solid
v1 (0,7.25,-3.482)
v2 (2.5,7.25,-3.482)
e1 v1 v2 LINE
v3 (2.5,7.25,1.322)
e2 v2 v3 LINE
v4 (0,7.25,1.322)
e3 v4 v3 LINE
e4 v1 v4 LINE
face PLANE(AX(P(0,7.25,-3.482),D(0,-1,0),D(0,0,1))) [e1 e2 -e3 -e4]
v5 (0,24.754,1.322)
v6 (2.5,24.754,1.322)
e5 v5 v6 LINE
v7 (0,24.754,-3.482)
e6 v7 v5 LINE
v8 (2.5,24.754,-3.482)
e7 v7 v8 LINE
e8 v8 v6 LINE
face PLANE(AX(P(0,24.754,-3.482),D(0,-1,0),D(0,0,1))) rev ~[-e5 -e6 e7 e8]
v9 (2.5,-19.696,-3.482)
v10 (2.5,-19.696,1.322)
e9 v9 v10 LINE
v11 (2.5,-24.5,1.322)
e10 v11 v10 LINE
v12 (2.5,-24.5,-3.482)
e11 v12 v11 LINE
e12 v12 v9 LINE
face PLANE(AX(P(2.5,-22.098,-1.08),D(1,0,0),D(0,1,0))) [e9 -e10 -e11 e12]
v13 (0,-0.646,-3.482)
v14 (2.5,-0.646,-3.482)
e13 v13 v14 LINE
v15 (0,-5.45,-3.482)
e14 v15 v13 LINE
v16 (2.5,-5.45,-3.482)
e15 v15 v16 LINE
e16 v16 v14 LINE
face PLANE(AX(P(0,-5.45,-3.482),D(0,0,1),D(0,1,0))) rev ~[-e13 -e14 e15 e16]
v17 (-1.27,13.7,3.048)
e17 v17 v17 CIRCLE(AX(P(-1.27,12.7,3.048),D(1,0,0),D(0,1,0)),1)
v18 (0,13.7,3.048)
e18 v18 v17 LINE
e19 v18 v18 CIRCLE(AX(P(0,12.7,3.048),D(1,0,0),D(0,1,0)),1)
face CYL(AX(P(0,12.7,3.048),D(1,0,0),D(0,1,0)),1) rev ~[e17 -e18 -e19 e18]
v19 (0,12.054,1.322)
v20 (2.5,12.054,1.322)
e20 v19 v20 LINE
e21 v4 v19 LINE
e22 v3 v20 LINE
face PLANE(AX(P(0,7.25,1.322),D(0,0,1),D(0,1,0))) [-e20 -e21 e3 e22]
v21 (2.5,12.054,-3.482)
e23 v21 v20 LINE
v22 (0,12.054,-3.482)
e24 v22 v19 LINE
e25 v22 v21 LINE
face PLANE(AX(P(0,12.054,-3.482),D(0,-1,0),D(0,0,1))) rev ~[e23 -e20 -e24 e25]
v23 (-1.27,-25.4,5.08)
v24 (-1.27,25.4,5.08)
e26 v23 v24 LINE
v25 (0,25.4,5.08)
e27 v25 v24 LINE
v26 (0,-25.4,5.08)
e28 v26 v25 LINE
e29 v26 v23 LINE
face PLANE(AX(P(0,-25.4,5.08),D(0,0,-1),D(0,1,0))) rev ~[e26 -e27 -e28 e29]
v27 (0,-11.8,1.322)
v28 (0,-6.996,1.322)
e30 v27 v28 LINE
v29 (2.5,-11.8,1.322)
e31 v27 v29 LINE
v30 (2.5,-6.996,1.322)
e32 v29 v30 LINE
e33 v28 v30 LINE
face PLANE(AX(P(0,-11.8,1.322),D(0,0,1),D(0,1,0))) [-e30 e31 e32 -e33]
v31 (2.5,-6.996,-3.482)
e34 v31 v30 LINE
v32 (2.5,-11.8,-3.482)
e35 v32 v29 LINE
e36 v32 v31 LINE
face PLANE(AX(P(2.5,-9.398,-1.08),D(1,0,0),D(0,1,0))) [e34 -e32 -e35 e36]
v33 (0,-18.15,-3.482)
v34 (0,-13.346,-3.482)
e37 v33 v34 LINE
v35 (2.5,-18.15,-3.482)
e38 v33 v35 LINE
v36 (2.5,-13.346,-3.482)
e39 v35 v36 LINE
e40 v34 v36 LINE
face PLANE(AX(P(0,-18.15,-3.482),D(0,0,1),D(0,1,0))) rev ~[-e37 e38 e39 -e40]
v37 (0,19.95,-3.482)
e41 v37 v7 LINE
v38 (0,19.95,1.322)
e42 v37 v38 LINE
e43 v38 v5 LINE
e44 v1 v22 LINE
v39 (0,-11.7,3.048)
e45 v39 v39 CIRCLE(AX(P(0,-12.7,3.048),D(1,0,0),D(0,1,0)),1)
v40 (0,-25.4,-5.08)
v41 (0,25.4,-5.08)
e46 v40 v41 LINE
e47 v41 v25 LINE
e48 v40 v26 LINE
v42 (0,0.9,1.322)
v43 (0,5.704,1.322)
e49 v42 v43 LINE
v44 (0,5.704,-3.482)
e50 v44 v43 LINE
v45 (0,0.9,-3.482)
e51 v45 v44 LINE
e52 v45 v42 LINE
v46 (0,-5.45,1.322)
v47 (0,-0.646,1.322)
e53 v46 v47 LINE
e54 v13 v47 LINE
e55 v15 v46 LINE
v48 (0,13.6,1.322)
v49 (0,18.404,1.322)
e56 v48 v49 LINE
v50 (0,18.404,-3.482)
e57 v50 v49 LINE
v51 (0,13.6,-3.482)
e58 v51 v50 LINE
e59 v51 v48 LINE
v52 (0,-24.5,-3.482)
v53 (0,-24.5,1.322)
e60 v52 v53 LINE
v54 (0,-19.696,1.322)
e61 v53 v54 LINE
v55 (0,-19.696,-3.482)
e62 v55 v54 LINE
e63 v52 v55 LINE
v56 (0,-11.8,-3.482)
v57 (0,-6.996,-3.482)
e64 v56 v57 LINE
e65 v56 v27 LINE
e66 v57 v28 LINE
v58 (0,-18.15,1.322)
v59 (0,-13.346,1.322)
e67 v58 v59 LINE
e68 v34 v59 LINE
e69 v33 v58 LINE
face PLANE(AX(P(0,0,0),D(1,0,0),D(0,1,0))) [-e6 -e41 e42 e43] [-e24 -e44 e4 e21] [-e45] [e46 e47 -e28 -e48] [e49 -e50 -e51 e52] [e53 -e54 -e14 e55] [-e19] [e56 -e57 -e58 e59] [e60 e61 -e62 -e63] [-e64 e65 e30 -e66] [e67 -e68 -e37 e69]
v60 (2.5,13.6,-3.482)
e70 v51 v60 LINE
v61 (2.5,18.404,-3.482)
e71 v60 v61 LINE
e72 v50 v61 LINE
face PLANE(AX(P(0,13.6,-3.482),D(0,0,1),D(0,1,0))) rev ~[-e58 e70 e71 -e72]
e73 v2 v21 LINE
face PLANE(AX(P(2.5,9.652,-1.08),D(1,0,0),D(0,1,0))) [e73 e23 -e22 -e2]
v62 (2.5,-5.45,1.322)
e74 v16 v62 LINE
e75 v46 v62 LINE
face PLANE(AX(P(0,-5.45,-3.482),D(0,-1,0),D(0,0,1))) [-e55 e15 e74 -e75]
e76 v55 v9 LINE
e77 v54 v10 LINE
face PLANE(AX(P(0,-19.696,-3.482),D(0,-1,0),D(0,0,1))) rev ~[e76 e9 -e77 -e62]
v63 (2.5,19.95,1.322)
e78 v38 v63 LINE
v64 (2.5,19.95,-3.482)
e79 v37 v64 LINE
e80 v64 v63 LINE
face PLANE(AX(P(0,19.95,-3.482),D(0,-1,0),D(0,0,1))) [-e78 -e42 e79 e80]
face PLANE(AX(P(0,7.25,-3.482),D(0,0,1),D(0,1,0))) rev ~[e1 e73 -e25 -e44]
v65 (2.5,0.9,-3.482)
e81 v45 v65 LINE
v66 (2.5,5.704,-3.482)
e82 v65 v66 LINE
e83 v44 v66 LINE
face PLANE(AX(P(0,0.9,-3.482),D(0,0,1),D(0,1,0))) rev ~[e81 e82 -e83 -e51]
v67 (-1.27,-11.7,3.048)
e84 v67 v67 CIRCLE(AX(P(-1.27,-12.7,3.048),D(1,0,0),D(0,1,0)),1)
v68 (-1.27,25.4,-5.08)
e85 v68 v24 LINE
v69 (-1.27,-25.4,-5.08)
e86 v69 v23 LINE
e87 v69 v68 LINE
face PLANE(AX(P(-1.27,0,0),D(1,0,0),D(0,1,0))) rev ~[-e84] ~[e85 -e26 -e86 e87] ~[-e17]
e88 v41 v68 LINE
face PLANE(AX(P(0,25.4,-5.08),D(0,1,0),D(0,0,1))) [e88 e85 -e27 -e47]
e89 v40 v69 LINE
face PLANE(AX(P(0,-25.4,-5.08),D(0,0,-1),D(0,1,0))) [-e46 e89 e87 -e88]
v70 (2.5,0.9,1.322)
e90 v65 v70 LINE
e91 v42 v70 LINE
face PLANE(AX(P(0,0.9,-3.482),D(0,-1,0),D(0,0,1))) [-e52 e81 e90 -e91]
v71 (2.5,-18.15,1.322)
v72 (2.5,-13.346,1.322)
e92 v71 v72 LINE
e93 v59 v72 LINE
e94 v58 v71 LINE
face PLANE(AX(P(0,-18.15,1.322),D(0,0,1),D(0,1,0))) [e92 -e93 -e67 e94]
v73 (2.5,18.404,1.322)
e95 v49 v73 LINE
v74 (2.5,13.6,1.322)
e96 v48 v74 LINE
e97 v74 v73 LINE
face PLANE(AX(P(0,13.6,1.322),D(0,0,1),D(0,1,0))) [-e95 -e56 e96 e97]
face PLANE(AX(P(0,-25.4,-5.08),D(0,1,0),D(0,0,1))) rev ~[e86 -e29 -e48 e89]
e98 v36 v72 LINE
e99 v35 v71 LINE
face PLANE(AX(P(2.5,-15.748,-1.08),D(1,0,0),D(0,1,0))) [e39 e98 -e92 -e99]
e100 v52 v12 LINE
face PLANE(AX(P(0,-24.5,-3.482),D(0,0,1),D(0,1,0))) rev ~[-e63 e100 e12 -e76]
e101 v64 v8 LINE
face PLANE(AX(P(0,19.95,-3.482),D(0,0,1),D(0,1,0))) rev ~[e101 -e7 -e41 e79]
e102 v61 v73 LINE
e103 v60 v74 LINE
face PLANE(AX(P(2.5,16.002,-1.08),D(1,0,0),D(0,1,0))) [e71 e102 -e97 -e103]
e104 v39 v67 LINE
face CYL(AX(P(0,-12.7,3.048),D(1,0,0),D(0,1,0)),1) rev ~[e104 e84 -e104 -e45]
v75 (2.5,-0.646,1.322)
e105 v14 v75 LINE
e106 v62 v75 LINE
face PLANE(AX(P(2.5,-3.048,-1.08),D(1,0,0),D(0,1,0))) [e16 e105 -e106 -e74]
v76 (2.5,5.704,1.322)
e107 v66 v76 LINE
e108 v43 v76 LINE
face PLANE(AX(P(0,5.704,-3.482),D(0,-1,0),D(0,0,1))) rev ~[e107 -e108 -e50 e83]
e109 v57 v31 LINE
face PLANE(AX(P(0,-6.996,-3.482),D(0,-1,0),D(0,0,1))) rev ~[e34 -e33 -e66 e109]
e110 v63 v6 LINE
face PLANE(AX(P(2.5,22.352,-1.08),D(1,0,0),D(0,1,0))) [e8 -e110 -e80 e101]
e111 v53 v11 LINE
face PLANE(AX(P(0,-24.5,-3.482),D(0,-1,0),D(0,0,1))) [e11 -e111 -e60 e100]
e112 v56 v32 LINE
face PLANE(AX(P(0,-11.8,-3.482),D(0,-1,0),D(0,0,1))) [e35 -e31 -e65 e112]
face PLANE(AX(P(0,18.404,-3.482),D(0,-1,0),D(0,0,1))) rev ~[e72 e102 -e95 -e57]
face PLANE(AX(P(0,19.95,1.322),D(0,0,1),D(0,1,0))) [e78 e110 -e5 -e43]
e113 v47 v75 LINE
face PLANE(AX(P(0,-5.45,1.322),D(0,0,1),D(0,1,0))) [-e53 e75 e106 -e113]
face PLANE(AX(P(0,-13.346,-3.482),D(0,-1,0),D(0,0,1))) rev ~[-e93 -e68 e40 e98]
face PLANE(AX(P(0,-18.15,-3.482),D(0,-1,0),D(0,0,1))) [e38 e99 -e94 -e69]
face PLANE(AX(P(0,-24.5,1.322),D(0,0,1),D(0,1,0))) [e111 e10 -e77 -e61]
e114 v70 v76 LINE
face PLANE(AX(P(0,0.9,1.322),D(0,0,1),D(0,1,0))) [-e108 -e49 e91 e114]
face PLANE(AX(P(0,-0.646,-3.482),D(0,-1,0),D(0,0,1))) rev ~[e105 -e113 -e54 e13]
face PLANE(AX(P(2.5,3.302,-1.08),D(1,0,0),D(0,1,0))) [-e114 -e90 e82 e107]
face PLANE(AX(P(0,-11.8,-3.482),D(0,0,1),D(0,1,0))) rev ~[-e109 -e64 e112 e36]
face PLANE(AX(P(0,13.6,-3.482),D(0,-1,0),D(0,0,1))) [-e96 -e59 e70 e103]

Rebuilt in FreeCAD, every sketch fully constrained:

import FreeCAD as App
import Part
import Sketcher
Q = App.Units.Quantity

doc = App.newDocument("Part")
params = doc.addObject("Spreadsheet::Sheet", "Params")
for row, (alias, value) in enumerate([
    ("sketch1_width", "2 in"),
    ("sketch1_height", "0.4 in"),
    ("pad1_length", "0.05 in"),
    ("pad2_length", "2.5 mm"),
], start=1):
    params.set(f"A{row}", alias)
    params.set(f"B{row}", "=" + value)
    params.setAlias(f"B{row}", alias)

body = doc.addObject("PartDesign::Body", "Body")

# Sketch on YZ plane
sketch1 = doc.addObject("Sketcher::SketchObject", "Sketch")
body.addObject(sketch1)
sketch1.AttachmentSupport = (doc.YZ_Plane, [""])
sketch1.MapMode = "FlatFace"
sketch1.addGeometry([
    Part.LineSegment(App.Vector(-25.4, 5.1, 0), App.Vector(-25.4, -5.1, 0)),  # 0
    Part.LineSegment(App.Vector(-25.4, -5.1, 0), App.Vector(25.4, -5.1, 0)),  # 1
    Part.LineSegment(App.Vector(25.4, -5.1, 0), App.Vector(25.4, 5.1, 0)),  # 2
    Part.LineSegment(App.Vector(25.4, 5.1, 0), App.Vector(-25.4, 5.1, 0)),  # 3
    Part.Circle(App.Vector(-12.7, 3, 0), App.Vector(0, 0, 1), 1),  # 4
    Part.Circle(App.Vector(12.7, 3, 0), App.Vector(0, 0, 1), 1),  # 5
], False)
sketch1.addConstraint([
    Sketcher.Constraint("Coincident", 0, 2, 1, 1),
    Sketcher.Constraint("Coincident", 1, 2, 2, 1),
    Sketcher.Constraint("Coincident", 2, 2, 3, 1),
    Sketcher.Constraint("Coincident", 3, 2, 0, 1),
    Sketcher.Constraint("Vertical", 0),
    Sketcher.Constraint("Horizontal", 1),
    Sketcher.Constraint("Vertical", 2),
    Sketcher.Constraint("Horizontal", 3),
    Sketcher.Constraint("Equal", 4, 5),
    Sketcher.Constraint("Symmetric", 0, 2, 2, 2, -1, 1),
    Sketcher.Constraint("Symmetric", 4, 3, 5, 3, -2),
    Sketcher.Constraint("DistanceX", 1, 1, 1, 2, Q("2 in")),
    Sketcher.Constraint("DistanceY", 0, 2, 0, 1, Q("0.4 in")),
    Sketcher.Constraint("DistanceX", 4, 3, 5, 3, Q("1 in")),
    Sketcher.Constraint("Diameter", 4, Q("2 mm")),
    Sketcher.Constraint("DistanceY", -1, 1, 4, 3, Q("0.12 in")),
])
sketch1.setExpression("Constraints[11]", "Params.sketch1_width")
sketch1.setExpression("Constraints[12]", "Params.sketch1_height")
pad1 = doc.addObject("PartDesign::Pad", "Pad")
body.addObject(pad1)
pad1.Profile = sketch1
pad1.setExpression("Length", "Params.pad1_length")
pad1.Reversed = True

# Sketch on YZ plane
sketch2 = doc.addObject("Sketcher::SketchObject", "Sketch001")
body.addObject(sketch2)
sketch2.AttachmentSupport = (doc.YZ_Plane, [""])
sketch2.MapMode = "FlatFace"
sketch2.addGeometry([
    Part.LineSegment(App.Vector(-24.5, 1.3, 0), App.Vector(-24.5, -3.5, 0)),  # 0
    Part.LineSegment(App.Vector(-24.5, -3.5, 0), App.Vector(-19.7, -3.5, 0)),  # 1
    Part.LineSegment(App.Vector(-19.7, -3.5, 0), App.Vector(-19.7, 1.3, 0)),  # 2
    Part.LineSegment(App.Vector(-19.7, 1.3, 0), App.Vector(-24.5, 1.3, 0)),  # 3
    Part.LineSegment(App.Vector(-18.1, 1.3, 0), App.Vector(-18.1, -3.5, 0)),  # 4
    Part.LineSegment(App.Vector(-18.1, -3.5, 0), App.Vector(-13.3, -3.5, 0)),  # 5
    Part.LineSegment(App.Vector(-13.3, -3.5, 0), App.Vector(-13.3, 1.3, 0)),  # 6
    Part.LineSegment(App.Vector(-13.3, 1.3, 0), App.Vector(-18.1, 1.3, 0)),  # 7
    Part.LineSegment(App.Vector(-11.8, 1.3, 0), App.Vector(-11.8, -3.5, 0)),  # 8
    Part.LineSegment(App.Vector(-11.8, -3.5, 0), App.Vector(-7, -3.5, 0)),  # 9
    Part.LineSegment(App.Vector(-7, -3.5, 0), App.Vector(-7, 1.3, 0)),  # 10
    Part.LineSegment(App.Vector(-7, 1.3, 0), App.Vector(-11.8, 1.3, 0)),  # 11
    Part.LineSegment(App.Vector(-5.5, 1.3, 0), App.Vector(-5.5, -3.5, 0)),  # 12
    Part.LineSegment(App.Vector(-5.5, -3.5, 0), App.Vector(-0.6, -3.5, 0)),  # 13
    Part.LineSegment(App.Vector(-0.6, -3.5, 0), App.Vector(-0.6, 1.3, 0)),  # 14
    Part.LineSegment(App.Vector(-0.6, 1.3, 0), App.Vector(-5.5, 1.3, 0)),  # 15
    Part.LineSegment(App.Vector(0.9, 1.3, 0), App.Vector(0.9, -3.5, 0)),  # 16
    Part.LineSegment(App.Vector(0.9, -3.5, 0), App.Vector(5.7, -3.5, 0)),  # 17
    Part.LineSegment(App.Vector(5.7, -3.5, 0), App.Vector(5.7, 1.3, 0)),  # 18
    Part.LineSegment(App.Vector(5.7, 1.3, 0), App.Vector(0.9, 1.3, 0)),  # 19
    Part.LineSegment(App.Vector(7.2, 1.3, 0), App.Vector(7.2, -3.5, 0)),  # 20
    Part.LineSegment(App.Vector(7.2, -3.5, 0), App.Vector(12.1, -3.5, 0)),  # 21
    Part.LineSegment(App.Vector(12.1, -3.5, 0), App.Vector(12.1, 1.3, 0)),  # 22
    Part.LineSegment(App.Vector(12.1, 1.3, 0), App.Vector(7.2, 1.3, 0)),  # 23
    Part.LineSegment(App.Vector(13.6, 1.3, 0), App.Vector(13.6, -3.5, 0)),  # 24
    Part.LineSegment(App.Vector(13.6, -3.5, 0), App.Vector(18.4, -3.5, 0)),  # 25
    Part.LineSegment(App.Vector(18.4, -3.5, 0), App.Vector(18.4, 1.3, 0)),  # 26
    Part.LineSegment(App.Vector(18.4, 1.3, 0), App.Vector(13.6, 1.3, 0)),  # 27
    Part.LineSegment(App.Vector(19.9, 1.3, 0), App.Vector(19.9, -3.5, 0)),  # 28
    Part.LineSegment(App.Vector(19.9, -3.5, 0), App.Vector(24.8, -3.5, 0)),  # 29
    Part.LineSegment(App.Vector(24.8, -3.5, 0), App.Vector(24.8, 1.3, 0)),  # 30
    Part.LineSegment(App.Vector(24.8, 1.3, 0), App.Vector(19.9, 1.3, 0)),  # 31
], False)
sketch2.addConstraint([
    Sketcher.Constraint("Coincident", 0, 2, 1, 1),
    Sketcher.Constraint("Coincident", 1, 2, 2, 1),
    Sketcher.Constraint("Coincident", 2, 2, 3, 1),
    Sketcher.Constraint("Coincident", 3, 2, 0, 1),
    Sketcher.Constraint("Coincident", 4, 2, 5, 1),
    Sketcher.Constraint("Coincident", 5, 2, 6, 1),
    Sketcher.Constraint("Coincident", 6, 2, 7, 1),
    Sketcher.Constraint("Coincident", 7, 2, 4, 1),
    Sketcher.Constraint("Coincident", 8, 2, 9, 1),
    Sketcher.Constraint("Coincident", 9, 2, 10, 1),
    Sketcher.Constraint("Coincident", 10, 2, 11, 1),
    Sketcher.Constraint("Coincident", 11, 2, 8, 1),
    Sketcher.Constraint("Coincident", 12, 2, 13, 1),
    Sketcher.Constraint("Coincident", 13, 2, 14, 1),
    Sketcher.Constraint("Coincident", 14, 2, 15, 1),
    Sketcher.Constraint("Coincident", 15, 2, 12, 1),
    Sketcher.Constraint("Coincident", 16, 2, 17, 1),
    Sketcher.Constraint("Coincident", 17, 2, 18, 1),
    Sketcher.Constraint("Coincident", 18, 2, 19, 1),
    Sketcher.Constraint("Coincident", 19, 2, 16, 1),
    Sketcher.Constraint("Coincident", 20, 2, 21, 1),
    Sketcher.Constraint("Coincident", 21, 2, 22, 1),
    Sketcher.Constraint("Coincident", 22, 2, 23, 1),
    Sketcher.Constraint("Coincident", 23, 2, 20, 1),
    Sketcher.Constraint("Coincident", 24, 2, 25, 1),
    Sketcher.Constraint("Coincident", 25, 2, 26, 1),
    Sketcher.Constraint("Coincident", 26, 2, 27, 1),
    Sketcher.Constraint("Coincident", 27, 2, 24, 1),
    Sketcher.Constraint("Coincident", 28, 2, 29, 1),
    Sketcher.Constraint("Coincident", 29, 2, 30, 1),
    Sketcher.Constraint("Coincident", 30, 2, 31, 1),
    Sketcher.Constraint("Coincident", 31, 2, 28, 1),
    Sketcher.Constraint("Vertical", 0),
    Sketcher.Constraint("Horizontal", 1),
    Sketcher.Constraint("Vertical", 2),
    Sketcher.Constraint("Horizontal", 3),
    Sketcher.Constraint("Vertical", 4),
    Sketcher.Constraint("Horizontal", 5),
    Sketcher.Constraint("Vertical", 6),
    Sketcher.Constraint("Horizontal", 7),
    Sketcher.Constraint("Vertical", 8),
    Sketcher.Constraint("Horizontal", 9),
    Sketcher.Constraint("Vertical", 10),
    Sketcher.Constraint("Horizontal", 11),
    Sketcher.Constraint("Vertical", 12),
    Sketcher.Constraint("Horizontal", 13),
    Sketcher.Constraint("Vertical", 14),
    Sketcher.Constraint("Horizontal", 15),
    Sketcher.Constraint("Vertical", 16),
    Sketcher.Constraint("Horizontal", 17),
    Sketcher.Constraint("Vertical", 18),
    Sketcher.Constraint("Horizontal", 19),
    Sketcher.Constraint("Vertical", 20),
    Sketcher.Constraint("Horizontal", 21),
    Sketcher.Constraint("Vertical", 22),
    Sketcher.Constraint("Horizontal", 23),
    Sketcher.Constraint("Vertical", 24),
    Sketcher.Constraint("Horizontal", 25),
    Sketcher.Constraint("Vertical", 26),
    Sketcher.Constraint("Horizontal", 27),
    Sketcher.Constraint("Vertical", 28),
    Sketcher.Constraint("Horizontal", 29),
    Sketcher.Constraint("Vertical", 30),
    Sketcher.Constraint("Horizontal", 31),
    Sketcher.Constraint("Horizontal", 1, 2, 4, 2),
    Sketcher.Constraint("Horizontal", 3, 2, 6, 2),
    Sketcher.Constraint("Horizontal", 5, 2, 8, 2),
    Sketcher.Constraint("Horizontal", 7, 2, 10, 2),
    Sketcher.Constraint("Horizontal", 9, 2, 12, 2),
    Sketcher.Constraint("Horizontal", 11, 2, 14, 2),
    Sketcher.Constraint("Horizontal", 13, 2, 16, 2),
    Sketcher.Constraint("Horizontal", 15, 2, 18, 2),
    Sketcher.Constraint("Horizontal", 17, 2, 20, 2),
    Sketcher.Constraint("Horizontal", 19, 2, 22, 2),
    Sketcher.Constraint("Horizontal", 21, 2, 24, 2),
    Sketcher.Constraint("Horizontal", 23, 2, 26, 2),
    Sketcher.Constraint("Horizontal", 25, 2, 28, 2),
    Sketcher.Constraint("Horizontal", 27, 2, 30, 2),
    Sketcher.Constraint("Equal", 3, 5),
    Sketcher.Constraint("Equal", 7, 9),
    Sketcher.Constraint("Equal", 11, 13),
    Sketcher.Constraint("Equal", 15, 17),
    Sketcher.Constraint("Equal", 19, 21),
    Sketcher.Constraint("Equal", 23, 25),
    Sketcher.Constraint("Equal", 27, 29),
    Sketcher.Constraint("Equal", 31, 0),
    Sketcher.Constraint("DistanceX", 0, 2, 4, 2, Q("0.25 in")),
    Sketcher.Constraint("DistanceX", 4, 2, 8, 2, Q("0.25 in")),
    Sketcher.Constraint("DistanceX", 8, 2, 12, 2, Q("0.25 in")),
    Sketcher.Constraint("DistanceX", 12, 2, 16, 2, Q("0.25 in")),
    Sketcher.Constraint("DistanceX", 16, 2, 20, 2, Q("0.25 in")),
    Sketcher.Constraint("DistanceX", 20, 2, 24, 2, Q("0.25 in")),
    Sketcher.Constraint("DistanceX", 24, 2, 28, 2, Q("0.25 in")),
    Sketcher.Constraint("DistanceX", 1, 1, 1, 2, Q("4.804 mm")),
    Sketcher.Constraint("DistanceX", 0, 2, -1, 1, Q("24.5 mm")),
    Sketcher.Constraint("DistanceY", 0, 2, -1, 1, Q("3.482 mm")),
])
pad2 = doc.addObject("PartDesign::Pad", "Pad001")
body.addObject(pad2)
pad2.Profile = sketch2
pad2.setExpression("Length", "Params.pad2_length")

doc.recompute()
